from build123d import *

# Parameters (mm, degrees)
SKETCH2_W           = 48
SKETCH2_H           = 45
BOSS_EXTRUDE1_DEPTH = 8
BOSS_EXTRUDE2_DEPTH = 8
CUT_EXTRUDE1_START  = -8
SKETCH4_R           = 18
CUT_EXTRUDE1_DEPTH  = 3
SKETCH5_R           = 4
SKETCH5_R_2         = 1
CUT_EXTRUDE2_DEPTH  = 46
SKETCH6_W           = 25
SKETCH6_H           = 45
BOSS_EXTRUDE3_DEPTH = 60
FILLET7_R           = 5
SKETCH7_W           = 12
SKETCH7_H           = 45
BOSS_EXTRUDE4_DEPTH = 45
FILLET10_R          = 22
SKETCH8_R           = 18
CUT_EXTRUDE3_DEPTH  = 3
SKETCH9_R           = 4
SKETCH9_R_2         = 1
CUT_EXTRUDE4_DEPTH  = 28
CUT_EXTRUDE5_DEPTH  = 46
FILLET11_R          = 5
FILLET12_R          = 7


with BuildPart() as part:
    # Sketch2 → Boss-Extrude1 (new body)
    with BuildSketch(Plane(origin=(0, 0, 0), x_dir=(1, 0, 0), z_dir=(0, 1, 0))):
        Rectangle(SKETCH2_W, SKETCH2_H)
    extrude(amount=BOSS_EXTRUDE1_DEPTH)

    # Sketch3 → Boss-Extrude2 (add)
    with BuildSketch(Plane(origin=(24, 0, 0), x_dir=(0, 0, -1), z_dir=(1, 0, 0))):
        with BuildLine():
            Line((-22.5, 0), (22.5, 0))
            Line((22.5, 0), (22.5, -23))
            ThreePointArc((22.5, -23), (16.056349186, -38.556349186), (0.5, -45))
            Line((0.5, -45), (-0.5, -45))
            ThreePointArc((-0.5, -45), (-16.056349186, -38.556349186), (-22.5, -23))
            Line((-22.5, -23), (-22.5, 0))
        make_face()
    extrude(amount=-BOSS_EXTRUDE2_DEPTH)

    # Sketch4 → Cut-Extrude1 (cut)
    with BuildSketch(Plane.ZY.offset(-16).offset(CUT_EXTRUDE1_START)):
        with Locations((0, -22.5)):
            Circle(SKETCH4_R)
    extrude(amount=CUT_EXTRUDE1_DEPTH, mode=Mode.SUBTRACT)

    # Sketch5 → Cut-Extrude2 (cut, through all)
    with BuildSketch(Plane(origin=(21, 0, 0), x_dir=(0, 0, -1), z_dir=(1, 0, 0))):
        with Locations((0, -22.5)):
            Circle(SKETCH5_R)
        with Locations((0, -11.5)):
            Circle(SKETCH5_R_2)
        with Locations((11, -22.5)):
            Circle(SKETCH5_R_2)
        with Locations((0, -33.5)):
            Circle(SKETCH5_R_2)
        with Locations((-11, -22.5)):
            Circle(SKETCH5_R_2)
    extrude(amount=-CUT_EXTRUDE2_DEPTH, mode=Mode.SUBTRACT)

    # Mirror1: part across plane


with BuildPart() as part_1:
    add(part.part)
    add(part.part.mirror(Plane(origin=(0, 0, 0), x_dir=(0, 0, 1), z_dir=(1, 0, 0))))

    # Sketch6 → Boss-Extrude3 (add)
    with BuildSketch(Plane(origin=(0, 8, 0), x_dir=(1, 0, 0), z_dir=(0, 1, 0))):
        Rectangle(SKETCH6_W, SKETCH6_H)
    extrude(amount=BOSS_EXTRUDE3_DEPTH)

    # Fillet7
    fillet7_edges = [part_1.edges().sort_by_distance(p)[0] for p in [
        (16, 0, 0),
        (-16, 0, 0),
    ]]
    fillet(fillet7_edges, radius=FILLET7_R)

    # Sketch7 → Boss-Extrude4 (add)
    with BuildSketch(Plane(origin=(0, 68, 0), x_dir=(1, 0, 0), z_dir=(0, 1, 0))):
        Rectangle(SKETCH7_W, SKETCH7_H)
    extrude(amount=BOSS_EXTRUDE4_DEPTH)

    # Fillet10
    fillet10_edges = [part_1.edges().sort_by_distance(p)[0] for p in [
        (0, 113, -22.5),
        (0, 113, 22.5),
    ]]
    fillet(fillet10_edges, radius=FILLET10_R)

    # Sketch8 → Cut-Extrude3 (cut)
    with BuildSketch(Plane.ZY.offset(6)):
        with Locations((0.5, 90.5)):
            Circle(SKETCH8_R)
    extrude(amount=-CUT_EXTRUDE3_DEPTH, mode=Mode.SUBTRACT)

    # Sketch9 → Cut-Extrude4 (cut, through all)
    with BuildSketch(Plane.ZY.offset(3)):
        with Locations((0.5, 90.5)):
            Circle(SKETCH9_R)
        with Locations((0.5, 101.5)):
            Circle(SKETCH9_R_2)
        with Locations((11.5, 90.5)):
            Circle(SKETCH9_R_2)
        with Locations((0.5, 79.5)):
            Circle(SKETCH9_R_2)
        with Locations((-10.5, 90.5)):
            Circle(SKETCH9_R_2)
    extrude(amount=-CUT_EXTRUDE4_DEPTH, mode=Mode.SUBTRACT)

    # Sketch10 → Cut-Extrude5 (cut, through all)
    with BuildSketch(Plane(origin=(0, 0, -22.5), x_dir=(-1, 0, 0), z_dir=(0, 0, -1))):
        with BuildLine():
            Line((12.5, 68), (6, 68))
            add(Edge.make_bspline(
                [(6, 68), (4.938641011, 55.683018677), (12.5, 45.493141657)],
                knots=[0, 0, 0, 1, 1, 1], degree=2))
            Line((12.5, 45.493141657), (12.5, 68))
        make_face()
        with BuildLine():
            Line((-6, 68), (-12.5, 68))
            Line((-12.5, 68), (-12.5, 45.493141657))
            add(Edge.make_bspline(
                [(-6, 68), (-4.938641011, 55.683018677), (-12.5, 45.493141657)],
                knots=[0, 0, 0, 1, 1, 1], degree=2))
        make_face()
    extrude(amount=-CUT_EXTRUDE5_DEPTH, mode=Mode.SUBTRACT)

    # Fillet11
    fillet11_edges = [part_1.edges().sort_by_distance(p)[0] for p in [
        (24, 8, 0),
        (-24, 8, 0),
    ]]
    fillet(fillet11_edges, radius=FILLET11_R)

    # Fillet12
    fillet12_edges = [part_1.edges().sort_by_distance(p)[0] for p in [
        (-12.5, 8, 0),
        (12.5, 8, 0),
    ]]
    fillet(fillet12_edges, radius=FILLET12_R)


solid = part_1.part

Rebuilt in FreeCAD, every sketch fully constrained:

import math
import FreeCAD as App
import Part
import Sketcher
from FreeCAD import Vector
Q = App.Units.Quantity


def edges_at(feature, points):
    """Names of the edges that pass closest to the given points."""
    edges = feature.Shape.Edges
    near = lambda p: min(range(len(edges)), key=lambda i: edges[i].distToShape(Part.Vertex(*p))[0])
    return sorted({f"Edge{near(p) + 1}" for p in points})


def add_polygon(sketch, points):
    """Adds a closed chain of lines whose ends are joined by coincident constraints."""
    first, n = sketch.GeometryCount, len(points)
    for a, b in zip(points, points[1:] + points[:1]):
        sketch.addGeometry(Part.LineSegment(App.Vector(*a, 0), App.Vector(*b, 0)), False)
    for i in range(n):
        sketch.addConstraint(Sketcher.Constraint("Coincident", first + i, 2, first + (i + 1) % n, 1))

doc = App.newDocument("Part")
body = doc.addObject("PartDesign::Body", "Body")

sketch1 = body.newObject("Sketcher::SketchObject", "Sketch")
sketch1.AttachmentSupport = (doc.getObject("XZ_Plane"), [""])
sketch1.MapMode = "FlatFace"
add_polygon(sketch1, [(-24, -22), (-24, 22), (24, 22), (24, -22)])
sketch1.addConstraint([
    Sketcher.Constraint("Vertical", 0),
    Sketcher.Constraint("Horizontal", 1),
    Sketcher.Constraint("Vertical", 2),
    Sketcher.Constraint("Horizontal", 3),
    Sketcher.Constraint("Symmetric", 0, 2, 2, 2, -1, 1),
    Sketcher.Constraint("DistanceX", 1, 1, 1, 2, Q("48 mm")),
    Sketcher.Constraint("DistanceY", 0, 1, 0, 2, Q("45 mm")),
])
pad1 = body.newObject("PartDesign::Pad", "Pad")
pad1.Profile = sketch1
pad1.Length = 8
pad1.Reversed = True

sketch2 = body.newObject("Sketcher::SketchObject", "Sketch001")
sketch2.AttachmentSupport = (doc.getObject("YZ_Plane"), [""])
sketch2.MapMode = "FlatFace"
sketch2.AttachmentOffset = App.Placement(Vector(0, 0, 24), App.Rotation())
sketch2.addGeometry([
    Part.LineSegment(Vector(0, -22.5, 0), Vector(0, 22.5, 0)),
    Part.LineSegment(Vector(0, 22.5, 0), Vector(-23, 22.5, 0)),
    Part.ArcOfCircle(Part.Circle(Vector(-23, 0.5, 0), Vector(0, 0, 1), 22), math.radians(90), math.radians(180)),
    Part.LineSegment(Vector(-45, 0.5, 0), Vector(-45, -0.5, 0)),
    Part.ArcOfCircle(Part.Circle(Vector(-23, -0.5, 0), Vector(0, 0, 1), 22), math.radians(180), math.radians(270)),
    Part.LineSegment(Vector(-23, -22.5, 0), Vector(0, -22.5, 0)),
], False)
sketch2.addConstraint([
    Sketcher.Constraint("Coincident", 0, 2, 1, 1),
    Sketcher.Constraint("Tangent", 1, 2, 2, 1),
    Sketcher.Constraint("Tangent", 2, 2, 3, 1),
    Sketcher.Constraint("Tangent", 3, 2, 4, 1),
    Sketcher.Constraint("Tangent", 4, 2, 5, 1),
    Sketcher.Constraint("Coincident", 5, 2, 0, 1),
    Sketcher.Constraint("Vertical", 0),
    Sketcher.Constraint("Horizontal", 1),
    Sketcher.Constraint("Vertical", 3),
    Sketcher.Constraint("Horizontal", 5),
    Sketcher.Constraint("Equal", 2, 4),
    Sketcher.Constraint("Symmetric", 0, 2, 5, 2, -1, 1),
    Sketcher.Constraint("Radius", 2, Q("22 mm")),
    Sketcher.Constraint("DistanceX", 1, 2, 1, 1, Q("23 mm")),
    Sketcher.Constraint("DistanceY", 0, 1, 0, 2, Q("45 mm")),
])
pad2 = body.newObject("PartDesign::Pad", "Pad001")
pad2.Profile = sketch2
pad2.Length = 8
pad2.Reversed = True

sketch3 = body.newObject("Sketcher::SketchObject", "Sketch002")
sketch3.AttachmentSupport = (doc.getObject("YZ_Plane"), [""])
sketch3.MapMode = "FlatFace"
sketch3.AttachmentOffset = App.Placement(Vector(0, 0, 24), App.Rotation())
sketch3.addGeometry(Part.Circle(Vector(-22, 0, 0), Vector(0, 0, 1), 18), False)
sketch3.addConstraint([
    Sketcher.Constraint("PointOnObject", 0, 3, -1),
    Sketcher.Constraint("Diameter", 0, Q("36 mm")),
    Sketcher.Constraint("DistanceX", 0, 3, -1, 1, Q("22.5 mm")),
])
pocket1 = body.newObject("PartDesign::Pocket", "Pocket")
pocket1.Profile = sketch3
pocket1.Length = 3

sketch4 = body.newObject("Sketcher::SketchObject", "Sketch003")
sketch4.AttachmentSupport = (doc.getObject("YZ_Plane"), [""])
sketch4.MapMode = "FlatFace"
sketch4.AttachmentOffset = App.Placement(Vector(0, 0, 21), App.Rotation())
sketch4.addGeometry([
    Part.Circle(Vector(-22.5, 0, 0), Vector(0, 0, 1), 4),
    Part.Circle(Vector(-11.5, 0, 0), Vector(0, 0, 1), 1),
    Part.Circle(Vector(-22.5, -11, 0), Vector(0, 0, 1), 1),
    Part.Circle(Vector(-33.5, 0, 0), Vector(0, 0, 1), 1),
    Part.Circle(Vector(-22.5, 11, 0), Vector(0, 0, 1), 1),
], False)
sketch4.addConstraint([
    Sketcher.Constraint("Equal", 1, 2),
    Sketcher.Constraint("Equal", 2, 3),
    Sketcher.Constraint("Equal", 3, 4),
    Sketcher.Constraint("Symmetric", 2, 3, 4, 3, -1),
    Sketcher.Constraint("PointOnObject", 0, 3, -1),
    Sketcher.Constraint("PointOnObject", 1, 3, -1),
    Sketcher.Constraint("PointOnObject", 3, 3, -1),
    Sketcher.Constraint("Vertical", 0, 3, 2, 3),
    Sketcher.Constraint("Diameter", 0, Q("8 mm")),
    Sketcher.Constraint("Diameter", 1, Q("2 mm")),
    Sketcher.Constraint("DistanceY", 2, 3, -1, 1, Q("11 mm")),
    Sketcher.Constraint("DistanceX", 0, 3, 1, 3, Q("11 mm")),
    Sketcher.Constraint("DistanceX", 3, 3, 0, 3, Q("11 mm")),
    Sketcher.Constraint("DistanceX", 0, 3, -1, 1, Q("22.5 mm")),
])
pocket2 = body.newObject("PartDesign::Pocket", "Pocket001")
pocket2.Profile = sketch4
pocket2.Type = "ThroughAll"
body2 = doc.addObject("PartDesign::Body", "Body001")
doc.recompute()

body2.BaseFeature = body
doc.recompute()

mirroring = doc.addObject("Part::Mirroring", "Mirroring")
mirroring.Source = body
mirroring.Base = Vector(0, 0, 0)
mirroring.Normal = Vector(1, 0, 0)
body3 = doc.addObject("PartDesign::Body", "Body002")
body3.BaseFeature = mirroring
boolean = body2.newObject("PartDesign::Boolean", "Boolean")
boolean.Type = "Fuse"
boolean.addObjects([body3])
doc.recompute()

sketch5 = body2.newObject("Sketcher::SketchObject", "Sketch004")
sketch5.AttachmentSupport = (doc.getObject("XZ_Plane001"), [""])
sketch5.MapMode = "FlatFace"
sketch5.AttachmentOffset = App.Placement(Vector(0, 0, -8), App.Rotation())
add_polygon(sketch5, [(-12, -22), (-12, 22), (12, 22), (12, -22)])
sketch5.addConstraint([
    Sketcher.Constraint("Vertical", 0),
    Sketcher.Constraint("Horizontal", 1),
    Sketcher.Constraint("Vertical", 2),
    Sketcher.Constraint("Horizontal", 3),
    Sketcher.Constraint("Symmetric", 0, 2, 2, 2, -1, 1),
    Sketcher.Constraint("DistanceX", 1, 1, 1, 2, Q("25 mm")),
    Sketcher.Constraint("DistanceY", 0, 1, 0, 2, Q("45 mm")),
])
pad3 = body2.newObject("PartDesign::Pad", "Pad002")
pad3.Profile = sketch5
pad3.Length = 60
pad3.Reversed = True
doc.recompute()

fillet = body2.newObject("PartDesign::Fillet", "Fillet")
fillet.Base = (pad3, edges_at(pad3, [(16, 0, 0), (-16, 0, 0)]))
fillet.Radius = 5

sketch6 = body2.newObject("Sketcher::SketchObject", "Sketch005")
sketch6.AttachmentSupport = (doc.getObject("XZ_Plane001"), [""])
sketch6.MapMode = "FlatFace"
sketch6.AttachmentOffset = App.Placement(Vector(0, 0, -68), App.Rotation())
add_polygon(sketch6, [(-6, -22), (-6, 22), (6, 22), (6, -22)])
sketch6.addConstraint([
    Sketcher.Constraint("Vertical", 0),
    Sketcher.Constraint("Horizontal", 1),
    Sketcher.Constraint("Vertical", 2),
    Sketcher.Constraint("Horizontal", 3),
    Sketcher.Constraint("Symmetric", 0, 2, 2, 2, -1, 1),
    Sketcher.Constraint("DistanceX", 1, 1, 1, 2, Q("12 mm")),
    Sketcher.Constraint("DistanceY", 0, 1, 0, 2, Q("45 mm")),
])
pad4 = body2.newObject("PartDesign::Pad", "Pad003")
pad4.Profile = sketch6
pad4.Length = 45
pad4.Reversed = True
doc.recompute()

fillet2 = body2.newObject("PartDesign::Fillet", "Fillet001")
fillet2.Base = (pad4, edges_at(pad4, [(0, 113, -22.5), (0, 113, 22.5)]))
fillet2.Radius = 22

sketch7 = body2.newObject("Sketcher::SketchObject", "Sketch006")
sketch7.AttachmentSupport = (doc.getObject("YZ_Plane001"), [""])
sketch7.MapMode = "FlatFace"
sketch7.AttachmentOffset = App.Placement(Vector(0, 0, -6), App.Rotation())
sketch7.addGeometry(Part.Circle(Vector(90, 0, 0), Vector(0, 0, 1), 18), False)
sketch7.addConstraint([
    Sketcher.Constraint("Diameter", 0, Q("36 mm")),
    Sketcher.Constraint("DistanceX", -1, 1, 0, 3, Q("90.5 mm")),
    Sketcher.Constraint("DistanceY", -1, 1, 0, 3, Q("0.5 mm")),
])
pocket3 = body2.newObject("PartDesign::Pocket", "Pocket002")
pocket3.Profile = sketch7
pocket3.Length = 3
pocket3.Reversed = True

sketch8 = body2.newObject("Sketcher::SketchObject", "Sketch007")
sketch8.AttachmentSupport = (doc.getObject("YZ_Plane001"), [""])
sketch8.MapMode = "FlatFace"
sketch8.AttachmentOffset = App.Placement(Vector(0, 0, -3), App.Rotation())
sketch8.addGeometry([
    Part.Circle(Vector(90.5, 0.5, 0), Vector(0, 0, 1), 4),
    Part.Circle(Vector(101.5, 0.5, 0), Vector(0, 0, 1), 1),
    Part.Circle(Vector(90.5, 11.5, 0), Vector(0, 0, 1), 1),
    Part.Circle(Vector(79.5, 0.5, 0), Vector(0, 0, 1), 1),
    Part.Circle(Vector(90.5, -10.5, 0), Vector(0, 0, 1), 1),
], False)
sketch8.addConstraint([
    Sketcher.Constraint("Equal", 1, 2),
    Sketcher.Constraint("Equal", 2, 3),
    Sketcher.Constraint("Equal", 3, 4),
    Sketcher.Constraint("Horizontal", 0, 3, 1, 3),
    Sketcher.Constraint("Horizontal", 1, 3, 3, 3),
    Sketcher.Constraint("Vertical", 0, 3, 2, 3),
    Sketcher.Constraint("Vertical", 2, 3, 4, 3),
    Sketcher.Constraint("Diameter", 0, Q("8 mm")),
    Sketcher.Constraint("Diameter", 1, Q("2 mm")),
    Sketcher.Constraint("DistanceX", 0, 3, 1, 3, Q("11 mm")),
    Sketcher.Constraint("DistanceY", 0, 3, 2, 3, Q("11 mm")),
    Sketcher.Constraint("DistanceX", 3, 3, 0, 3, Q("11 mm")),
    Sketcher.Constraint("DistanceY", 4, 3, 0, 3, Q("11 mm")),
    Sketcher.Constraint("DistanceX", -1, 1, 0, 3, Q("90.5 mm")),
    Sketcher.Constraint("DistanceY", -1, 1, 0, 3, Q("0.5 mm")),
])
pocket4 = body2.newObject("PartDesign::Pocket", "Pocket003")
pocket4.Profile = sketch8
pocket4.Type = "ThroughAll"
pocket4.Reversed = True

sketch9 = body2.newObject("Sketcher::SketchObject", "Sketch008")
sketch9.AttachmentSupport = (doc.getObject("XY_Plane001"), [""])
sketch9.MapMode = "FlatFace"
sketch9.AttachmentOffset = App.Placement(Vector(0, 0, -22.5), App.Rotation())
sketch9.addGeometry([
    Part.LineSegment(Vector(-12.5, 68, 0), Vector(-6, 68, 0)),
    Part.BSplineCurve([Vector(-6, 68, 0), Vector(-4.938641, 55.683019, 0), Vector(-12.5, 45.493142, 0)], [3, 3], [0, 1], False, 2, [1, 1, 1], False),
    Part.LineSegment(Vector(-12.5, 45.493142, 0), Vector(-12.5, 68, 0)),
    Part.LineSegment(Vector(6, 68, 0), Vector(12.5, 68, 0)),
    Part.LineSegment(Vector(12.5, 68, 0), Vector(12.5, 45.493142, 0)),
    Part.BSplineCurve([Vector(6, 68, 0), Vector(4.938641, 55.683019, 0), Vector(12.5, 45.493142, 0)], [3, 3], [0, 1], False, 2, [1, 1, 1], False),
], False)
sketch9.addConstraint([
    Sketcher.Constraint("Block", 1),
    Sketcher.Constraint("Block", 5),
    Sketcher.Constraint("Coincident", 0, 2, 1, 1),
    Sketcher.Constraint("Coincident", 1, 2, 2, 1),
    Sketcher.Constraint("Coincident", 2, 2, 0, 1),
    Sketcher.Constraint("Coincident", 3, 2, 4, 1),
    Sketcher.Constraint("Coincident", 4, 2, 5, 2),
    Sketcher.Constraint("Coincident", 5, 1, 3, 1),
    Sketcher.Constraint("Horizontal", 0),
    Sketcher.Constraint("Vertical", 2),
    Sketcher.Constraint("Horizontal", 3),
    Sketcher.Constraint("Vertical", 4),
])
pocket5 = body2.newObject("PartDesign::Pocket", "Pocket004")
pocket5.Profile = sketch9
pocket5.Type = "ThroughAll"
pocket5.Reversed = True
doc.recompute()

fillet3 = body2.newObject("PartDesign::Fillet", "Fillet002")
fillet3.Base = (pocket5, edges_at(pocket5, [(24, 8, 0), (-24, 8, 0)]))
fillet3.Radius = 5
doc.recompute()

fillet4 = body2.newObject("PartDesign::Fillet", "Fillet003")
fillet4.Base = (fillet3, edges_at(fillet3, [(-12.5, 8, 0), (12.5, 8, 0)]))
fillet4.Radius = 7
mirroring.Visibility = False

doc.recompute()
